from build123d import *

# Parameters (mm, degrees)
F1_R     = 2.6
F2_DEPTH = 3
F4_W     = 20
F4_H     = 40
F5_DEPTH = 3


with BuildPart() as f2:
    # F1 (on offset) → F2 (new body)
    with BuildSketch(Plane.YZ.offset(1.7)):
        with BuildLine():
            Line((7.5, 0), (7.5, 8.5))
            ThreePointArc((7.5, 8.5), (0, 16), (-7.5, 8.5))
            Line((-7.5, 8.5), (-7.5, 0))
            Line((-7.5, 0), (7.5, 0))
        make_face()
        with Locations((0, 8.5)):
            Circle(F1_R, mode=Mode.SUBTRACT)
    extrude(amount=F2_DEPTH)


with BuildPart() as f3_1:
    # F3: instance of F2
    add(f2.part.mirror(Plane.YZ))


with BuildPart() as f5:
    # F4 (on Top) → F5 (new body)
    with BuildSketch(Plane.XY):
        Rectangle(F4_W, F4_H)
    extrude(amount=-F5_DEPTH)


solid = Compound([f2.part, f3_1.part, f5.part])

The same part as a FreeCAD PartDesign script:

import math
import FreeCAD as App
import Part
import Sketcher
Q = App.Units.Quantity


def add_polygon(sketch, points):
    """Adds a closed chain of lines whose ends are joined by coincident constraints."""
    first, n = sketch.GeometryCount, len(points)
    for a, b in zip(points, points[1:] + points[:1]):
        sketch.addGeometry(Part.LineSegment(App.Vector(*a, 0), App.Vector(*b, 0)), False)
    for i in range(n):
        sketch.addConstraint(Sketcher.Constraint("Coincident", first + i, 2, first + (i + 1) % n, 1))

doc = App.newDocument("Part")
params = doc.addObject("Spreadsheet::Sheet", "Params")
for row, (alias, value) in enumerate([
    ("sketch1_diameter", "5.2 mm"),
    ("sketch1_radius", "7.5 mm"),
    ("sketch1_height", "8.5 mm"),
    ("pad1_length", "3 mm"),
    ("sketch2_width", "20 mm"),
    ("sketch2_height", "40 mm"),
    ("pad2_length", "3 mm"),
], start=1):
    params.set(f"A{row}", alias)
    params.set(f"B{row}", "=" + value)
    params.setAlias(f"B{row}", alias)

body = doc.addObject("PartDesign::Body", "Body")

sketch1 = body.newObject("Sketcher::SketchObject", "Sketch")
sketch1.AttachmentSupport = (doc.getObject("YZ_Plane"), [""])
sketch1.MapMode = "FlatFace"
sketch1.AttachmentOffset = App.Placement(App.Vector(0, 0, 1.7), App.Rotation())
sketch1.addGeometry([
    Part.LineSegment(App.Vector(7.5, 0, 0), App.Vector(7.5, 8.5, 0)),
    Part.ArcOfCircle(Part.Circle(App.Vector(0, 8.5, 0), App.Vector(0, 0, 1), 7.5), math.radians(0), math.radians(180)),
    Part.LineSegment(App.Vector(-7.5, 8.5, 0), App.Vector(-7.5, 0, 0)),
    Part.LineSegment(App.Vector(-7.5, 0, 0), App.Vector(7.5, 0, 0)),
    Part.Circle(App.Vector(0, 8.5, 0), App.Vector(0, 0, 1), 2.6),
], False)
sketch1.addConstraint([
    Sketcher.Constraint("Tangent", 0, 2, 1, 1),
    Sketcher.Constraint("Tangent", 1, 2, 2, 1),
    Sketcher.Constraint("Coincident", 2, 2, 3, 1),
    Sketcher.Constraint("Coincident", 3, 2, 0, 1),
    Sketcher.Constraint("Vertical", 0),
    Sketcher.Constraint("Vertical", 2),
    Sketcher.Constraint("Horizontal", 3),
    Sketcher.Constraint("Coincident", 4, 3, 1, 3),
    Sketcher.Constraint("Symmetric", 2, 2, 3, 2, -1, 1),
    Sketcher.Constraint("Diameter", 4, Q("5.2 mm")),
    Sketcher.Constraint("Radius", 1, Q("7.5 mm")),
    Sketcher.Constraint("DistanceY", 0, 1, 0, 2, Q("8.5 mm")),
])
sketch1.setExpression("Constraints[9]", "Params.sketch1_diameter")
sketch1.setExpression("Constraints[10]", "Params.sketch1_radius")
sketch1.setExpression("Constraints[11]", "Params.sketch1_height")
pad1 = body.newObject("PartDesign::Pad", "Pad")
pad1.Profile = sketch1
pad1.setExpression("Length", "Params.pad1_length")
body2 = doc.addObject("PartDesign::Body", "Body001")
doc.recompute()

mirroring = doc.addObject("Part::Mirroring", "Mirroring")
mirroring.Source = body
mirroring.Base = App.Vector(0, 0, 0)
mirroring.Normal = App.Vector(1, 0, 0)
body2.BaseFeature = mirroring
doc.recompute()
body3 = doc.addObject("PartDesign::Body", "Body002")

sketch2 = body3.newObject("Sketcher::SketchObject", "Sketch001")
sketch2.AttachmentSupport = (doc.getObject("XY_Plane002"), [""])
sketch2.MapMode = "FlatFace"
add_polygon(sketch2, [(-10, 20), (-10, -20), (10, -20), (10, 20)])
sketch2.addConstraint([
    Sketcher.Constraint("Vertical", 0),
    Sketcher.Constraint("Horizontal", 1),
    Sketcher.Constraint("Vertical", 2),
    Sketcher.Constraint("Horizontal", 3),
    Sketcher.Constraint("Symmetric", 0, 2, 2, 2, -1, 1),
    Sketcher.Constraint("DistanceX", 1, 1, 1, 2, Q("20 mm")),
    Sketcher.Constraint("DistanceY", 0, 2, 0, 1, Q("40 mm")),
])
sketch2.setExpression("Constraints[9]", "Params.sketch2_width")
sketch2.setExpression("Constraints[10]", "Params.sketch2_height")
pad2 = body3.newObject("PartDesign::Pad", "Pad001")
pad2.Profile = sketch2
pad2.setExpression("Length", "Params.pad2_length")
pad2.Reversed = True
mirroring.Visibility = False

doc.recompute()
